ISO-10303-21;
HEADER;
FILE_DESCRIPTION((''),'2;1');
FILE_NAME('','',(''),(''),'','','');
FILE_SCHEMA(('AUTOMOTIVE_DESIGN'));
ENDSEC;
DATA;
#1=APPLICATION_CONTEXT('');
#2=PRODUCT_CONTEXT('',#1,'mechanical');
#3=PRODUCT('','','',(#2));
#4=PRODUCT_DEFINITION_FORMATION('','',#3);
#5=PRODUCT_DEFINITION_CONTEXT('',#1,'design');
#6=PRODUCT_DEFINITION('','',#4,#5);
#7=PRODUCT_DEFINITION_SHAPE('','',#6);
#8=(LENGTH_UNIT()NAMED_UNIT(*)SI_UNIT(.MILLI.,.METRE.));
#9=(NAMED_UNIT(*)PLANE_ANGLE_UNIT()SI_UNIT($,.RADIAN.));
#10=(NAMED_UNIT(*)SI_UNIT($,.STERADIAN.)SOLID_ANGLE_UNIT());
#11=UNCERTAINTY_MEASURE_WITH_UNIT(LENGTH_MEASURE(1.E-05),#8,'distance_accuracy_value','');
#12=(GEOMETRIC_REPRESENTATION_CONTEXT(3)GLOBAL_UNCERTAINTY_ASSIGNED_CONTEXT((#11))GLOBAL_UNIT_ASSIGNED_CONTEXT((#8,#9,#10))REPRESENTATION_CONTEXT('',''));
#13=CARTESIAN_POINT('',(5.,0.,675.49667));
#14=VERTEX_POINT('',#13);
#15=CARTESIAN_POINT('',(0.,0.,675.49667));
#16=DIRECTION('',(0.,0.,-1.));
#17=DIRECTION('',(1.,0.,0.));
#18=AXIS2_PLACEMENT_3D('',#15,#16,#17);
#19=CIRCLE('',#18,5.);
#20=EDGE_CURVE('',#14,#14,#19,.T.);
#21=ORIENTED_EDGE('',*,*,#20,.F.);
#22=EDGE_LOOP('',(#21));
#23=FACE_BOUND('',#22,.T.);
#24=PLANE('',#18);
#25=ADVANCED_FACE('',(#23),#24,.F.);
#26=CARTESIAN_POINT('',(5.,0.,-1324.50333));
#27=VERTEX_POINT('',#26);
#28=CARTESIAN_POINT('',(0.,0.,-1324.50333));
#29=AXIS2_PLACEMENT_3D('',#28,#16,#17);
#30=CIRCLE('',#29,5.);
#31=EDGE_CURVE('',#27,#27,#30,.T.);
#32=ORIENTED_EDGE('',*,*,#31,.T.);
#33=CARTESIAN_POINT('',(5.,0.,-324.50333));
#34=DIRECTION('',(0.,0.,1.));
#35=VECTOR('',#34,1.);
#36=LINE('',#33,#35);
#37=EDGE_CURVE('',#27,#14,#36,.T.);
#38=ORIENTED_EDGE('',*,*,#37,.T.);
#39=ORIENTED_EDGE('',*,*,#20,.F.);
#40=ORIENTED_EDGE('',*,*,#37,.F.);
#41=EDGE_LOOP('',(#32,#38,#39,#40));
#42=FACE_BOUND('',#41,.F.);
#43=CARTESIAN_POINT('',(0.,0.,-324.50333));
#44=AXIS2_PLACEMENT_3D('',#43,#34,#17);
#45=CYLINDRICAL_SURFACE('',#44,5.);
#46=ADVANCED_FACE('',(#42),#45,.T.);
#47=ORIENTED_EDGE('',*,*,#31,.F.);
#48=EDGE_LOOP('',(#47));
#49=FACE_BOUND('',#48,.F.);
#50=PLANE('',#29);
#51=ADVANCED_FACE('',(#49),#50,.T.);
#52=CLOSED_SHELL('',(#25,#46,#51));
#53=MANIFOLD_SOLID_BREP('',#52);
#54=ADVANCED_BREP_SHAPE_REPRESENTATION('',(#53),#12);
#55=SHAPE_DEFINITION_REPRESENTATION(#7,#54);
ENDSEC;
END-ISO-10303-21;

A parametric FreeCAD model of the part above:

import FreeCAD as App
import Part
import Sketcher

V = App.Vector
Q = App.Units.Quantity

doc = App.newDocument("Part")
params = doc.addObject("Spreadsheet::Sheet", "Params")
for row, (alias, value) in enumerate([
    ("sketch1_width", "5 mm"),
    ("sketch1_height", "2000 mm"),
    ("revolution_angle", "360 deg"),
], start=1):
    params.set(f"A{row}", alias)
    params.set(f"B{row}", "=" + value)
    params.setAlias(f"B{row}", alias)

body = doc.addObject("PartDesign::Body", "Body")

sketch1 = body.newObject("Sketcher::SketchObject", "Sketch")
sketch1.AttachmentSupport = (doc.getObject("XZ_Plane"), [""])
sketch1.MapMode = "FlatFace"
sketch1.addGeometry([
    Part.LineSegment(V(0, 675, 0), V(0, -1325, 0)),
    Part.LineSegment(V(0, -1325, 0), V(5, -1325, 0)),
    Part.LineSegment(V(5, -1325, 0), V(5, 675, 0)),
    Part.LineSegment(V(5, 675, 0), V(0, 675, 0)),
], False)
sketch1.addConstraint([
    Sketcher.Constraint("Coincident", 0, 2, 1, 1),
    Sketcher.Constraint("Coincident", 1, 2, 2, 1),
    Sketcher.Constraint("Coincident", 2, 2, 3, 1),
    Sketcher.Constraint("Coincident", 3, 2, 0, 1),
    Sketcher.Constraint("Vertical", 0),
    Sketcher.Constraint("Horizontal", 1),
    Sketcher.Constraint("Vertical", 2),
    Sketcher.Constraint("Horizontal", 3),
    Sketcher.Constraint("PointOnObject", 0, 2, -2),
    Sketcher.Constraint("DistanceX", 1, 1, 1, 2, Q("5 mm")),
    Sketcher.Constraint("DistanceY", 0, 2, 0, 1, Q("2000 mm")),
    Sketcher.Constraint("DistanceY", 0, 2, -1, 1, Q("1324.50333 mm")),
])
sketch1.setExpression("Constraints[9]", "Params.sketch1_width")
sketch1.setExpression("Constraints[10]", "Params.sketch1_height")
revolution = body.newObject("PartDesign::Revolution", "Revolution")
revolution.Profile = sketch1
revolution.ReferenceAxis = (sketch1, ["V_Axis"])
revolution.setExpression("Angle", "Params.revolution_angle")

doc.recompute()
